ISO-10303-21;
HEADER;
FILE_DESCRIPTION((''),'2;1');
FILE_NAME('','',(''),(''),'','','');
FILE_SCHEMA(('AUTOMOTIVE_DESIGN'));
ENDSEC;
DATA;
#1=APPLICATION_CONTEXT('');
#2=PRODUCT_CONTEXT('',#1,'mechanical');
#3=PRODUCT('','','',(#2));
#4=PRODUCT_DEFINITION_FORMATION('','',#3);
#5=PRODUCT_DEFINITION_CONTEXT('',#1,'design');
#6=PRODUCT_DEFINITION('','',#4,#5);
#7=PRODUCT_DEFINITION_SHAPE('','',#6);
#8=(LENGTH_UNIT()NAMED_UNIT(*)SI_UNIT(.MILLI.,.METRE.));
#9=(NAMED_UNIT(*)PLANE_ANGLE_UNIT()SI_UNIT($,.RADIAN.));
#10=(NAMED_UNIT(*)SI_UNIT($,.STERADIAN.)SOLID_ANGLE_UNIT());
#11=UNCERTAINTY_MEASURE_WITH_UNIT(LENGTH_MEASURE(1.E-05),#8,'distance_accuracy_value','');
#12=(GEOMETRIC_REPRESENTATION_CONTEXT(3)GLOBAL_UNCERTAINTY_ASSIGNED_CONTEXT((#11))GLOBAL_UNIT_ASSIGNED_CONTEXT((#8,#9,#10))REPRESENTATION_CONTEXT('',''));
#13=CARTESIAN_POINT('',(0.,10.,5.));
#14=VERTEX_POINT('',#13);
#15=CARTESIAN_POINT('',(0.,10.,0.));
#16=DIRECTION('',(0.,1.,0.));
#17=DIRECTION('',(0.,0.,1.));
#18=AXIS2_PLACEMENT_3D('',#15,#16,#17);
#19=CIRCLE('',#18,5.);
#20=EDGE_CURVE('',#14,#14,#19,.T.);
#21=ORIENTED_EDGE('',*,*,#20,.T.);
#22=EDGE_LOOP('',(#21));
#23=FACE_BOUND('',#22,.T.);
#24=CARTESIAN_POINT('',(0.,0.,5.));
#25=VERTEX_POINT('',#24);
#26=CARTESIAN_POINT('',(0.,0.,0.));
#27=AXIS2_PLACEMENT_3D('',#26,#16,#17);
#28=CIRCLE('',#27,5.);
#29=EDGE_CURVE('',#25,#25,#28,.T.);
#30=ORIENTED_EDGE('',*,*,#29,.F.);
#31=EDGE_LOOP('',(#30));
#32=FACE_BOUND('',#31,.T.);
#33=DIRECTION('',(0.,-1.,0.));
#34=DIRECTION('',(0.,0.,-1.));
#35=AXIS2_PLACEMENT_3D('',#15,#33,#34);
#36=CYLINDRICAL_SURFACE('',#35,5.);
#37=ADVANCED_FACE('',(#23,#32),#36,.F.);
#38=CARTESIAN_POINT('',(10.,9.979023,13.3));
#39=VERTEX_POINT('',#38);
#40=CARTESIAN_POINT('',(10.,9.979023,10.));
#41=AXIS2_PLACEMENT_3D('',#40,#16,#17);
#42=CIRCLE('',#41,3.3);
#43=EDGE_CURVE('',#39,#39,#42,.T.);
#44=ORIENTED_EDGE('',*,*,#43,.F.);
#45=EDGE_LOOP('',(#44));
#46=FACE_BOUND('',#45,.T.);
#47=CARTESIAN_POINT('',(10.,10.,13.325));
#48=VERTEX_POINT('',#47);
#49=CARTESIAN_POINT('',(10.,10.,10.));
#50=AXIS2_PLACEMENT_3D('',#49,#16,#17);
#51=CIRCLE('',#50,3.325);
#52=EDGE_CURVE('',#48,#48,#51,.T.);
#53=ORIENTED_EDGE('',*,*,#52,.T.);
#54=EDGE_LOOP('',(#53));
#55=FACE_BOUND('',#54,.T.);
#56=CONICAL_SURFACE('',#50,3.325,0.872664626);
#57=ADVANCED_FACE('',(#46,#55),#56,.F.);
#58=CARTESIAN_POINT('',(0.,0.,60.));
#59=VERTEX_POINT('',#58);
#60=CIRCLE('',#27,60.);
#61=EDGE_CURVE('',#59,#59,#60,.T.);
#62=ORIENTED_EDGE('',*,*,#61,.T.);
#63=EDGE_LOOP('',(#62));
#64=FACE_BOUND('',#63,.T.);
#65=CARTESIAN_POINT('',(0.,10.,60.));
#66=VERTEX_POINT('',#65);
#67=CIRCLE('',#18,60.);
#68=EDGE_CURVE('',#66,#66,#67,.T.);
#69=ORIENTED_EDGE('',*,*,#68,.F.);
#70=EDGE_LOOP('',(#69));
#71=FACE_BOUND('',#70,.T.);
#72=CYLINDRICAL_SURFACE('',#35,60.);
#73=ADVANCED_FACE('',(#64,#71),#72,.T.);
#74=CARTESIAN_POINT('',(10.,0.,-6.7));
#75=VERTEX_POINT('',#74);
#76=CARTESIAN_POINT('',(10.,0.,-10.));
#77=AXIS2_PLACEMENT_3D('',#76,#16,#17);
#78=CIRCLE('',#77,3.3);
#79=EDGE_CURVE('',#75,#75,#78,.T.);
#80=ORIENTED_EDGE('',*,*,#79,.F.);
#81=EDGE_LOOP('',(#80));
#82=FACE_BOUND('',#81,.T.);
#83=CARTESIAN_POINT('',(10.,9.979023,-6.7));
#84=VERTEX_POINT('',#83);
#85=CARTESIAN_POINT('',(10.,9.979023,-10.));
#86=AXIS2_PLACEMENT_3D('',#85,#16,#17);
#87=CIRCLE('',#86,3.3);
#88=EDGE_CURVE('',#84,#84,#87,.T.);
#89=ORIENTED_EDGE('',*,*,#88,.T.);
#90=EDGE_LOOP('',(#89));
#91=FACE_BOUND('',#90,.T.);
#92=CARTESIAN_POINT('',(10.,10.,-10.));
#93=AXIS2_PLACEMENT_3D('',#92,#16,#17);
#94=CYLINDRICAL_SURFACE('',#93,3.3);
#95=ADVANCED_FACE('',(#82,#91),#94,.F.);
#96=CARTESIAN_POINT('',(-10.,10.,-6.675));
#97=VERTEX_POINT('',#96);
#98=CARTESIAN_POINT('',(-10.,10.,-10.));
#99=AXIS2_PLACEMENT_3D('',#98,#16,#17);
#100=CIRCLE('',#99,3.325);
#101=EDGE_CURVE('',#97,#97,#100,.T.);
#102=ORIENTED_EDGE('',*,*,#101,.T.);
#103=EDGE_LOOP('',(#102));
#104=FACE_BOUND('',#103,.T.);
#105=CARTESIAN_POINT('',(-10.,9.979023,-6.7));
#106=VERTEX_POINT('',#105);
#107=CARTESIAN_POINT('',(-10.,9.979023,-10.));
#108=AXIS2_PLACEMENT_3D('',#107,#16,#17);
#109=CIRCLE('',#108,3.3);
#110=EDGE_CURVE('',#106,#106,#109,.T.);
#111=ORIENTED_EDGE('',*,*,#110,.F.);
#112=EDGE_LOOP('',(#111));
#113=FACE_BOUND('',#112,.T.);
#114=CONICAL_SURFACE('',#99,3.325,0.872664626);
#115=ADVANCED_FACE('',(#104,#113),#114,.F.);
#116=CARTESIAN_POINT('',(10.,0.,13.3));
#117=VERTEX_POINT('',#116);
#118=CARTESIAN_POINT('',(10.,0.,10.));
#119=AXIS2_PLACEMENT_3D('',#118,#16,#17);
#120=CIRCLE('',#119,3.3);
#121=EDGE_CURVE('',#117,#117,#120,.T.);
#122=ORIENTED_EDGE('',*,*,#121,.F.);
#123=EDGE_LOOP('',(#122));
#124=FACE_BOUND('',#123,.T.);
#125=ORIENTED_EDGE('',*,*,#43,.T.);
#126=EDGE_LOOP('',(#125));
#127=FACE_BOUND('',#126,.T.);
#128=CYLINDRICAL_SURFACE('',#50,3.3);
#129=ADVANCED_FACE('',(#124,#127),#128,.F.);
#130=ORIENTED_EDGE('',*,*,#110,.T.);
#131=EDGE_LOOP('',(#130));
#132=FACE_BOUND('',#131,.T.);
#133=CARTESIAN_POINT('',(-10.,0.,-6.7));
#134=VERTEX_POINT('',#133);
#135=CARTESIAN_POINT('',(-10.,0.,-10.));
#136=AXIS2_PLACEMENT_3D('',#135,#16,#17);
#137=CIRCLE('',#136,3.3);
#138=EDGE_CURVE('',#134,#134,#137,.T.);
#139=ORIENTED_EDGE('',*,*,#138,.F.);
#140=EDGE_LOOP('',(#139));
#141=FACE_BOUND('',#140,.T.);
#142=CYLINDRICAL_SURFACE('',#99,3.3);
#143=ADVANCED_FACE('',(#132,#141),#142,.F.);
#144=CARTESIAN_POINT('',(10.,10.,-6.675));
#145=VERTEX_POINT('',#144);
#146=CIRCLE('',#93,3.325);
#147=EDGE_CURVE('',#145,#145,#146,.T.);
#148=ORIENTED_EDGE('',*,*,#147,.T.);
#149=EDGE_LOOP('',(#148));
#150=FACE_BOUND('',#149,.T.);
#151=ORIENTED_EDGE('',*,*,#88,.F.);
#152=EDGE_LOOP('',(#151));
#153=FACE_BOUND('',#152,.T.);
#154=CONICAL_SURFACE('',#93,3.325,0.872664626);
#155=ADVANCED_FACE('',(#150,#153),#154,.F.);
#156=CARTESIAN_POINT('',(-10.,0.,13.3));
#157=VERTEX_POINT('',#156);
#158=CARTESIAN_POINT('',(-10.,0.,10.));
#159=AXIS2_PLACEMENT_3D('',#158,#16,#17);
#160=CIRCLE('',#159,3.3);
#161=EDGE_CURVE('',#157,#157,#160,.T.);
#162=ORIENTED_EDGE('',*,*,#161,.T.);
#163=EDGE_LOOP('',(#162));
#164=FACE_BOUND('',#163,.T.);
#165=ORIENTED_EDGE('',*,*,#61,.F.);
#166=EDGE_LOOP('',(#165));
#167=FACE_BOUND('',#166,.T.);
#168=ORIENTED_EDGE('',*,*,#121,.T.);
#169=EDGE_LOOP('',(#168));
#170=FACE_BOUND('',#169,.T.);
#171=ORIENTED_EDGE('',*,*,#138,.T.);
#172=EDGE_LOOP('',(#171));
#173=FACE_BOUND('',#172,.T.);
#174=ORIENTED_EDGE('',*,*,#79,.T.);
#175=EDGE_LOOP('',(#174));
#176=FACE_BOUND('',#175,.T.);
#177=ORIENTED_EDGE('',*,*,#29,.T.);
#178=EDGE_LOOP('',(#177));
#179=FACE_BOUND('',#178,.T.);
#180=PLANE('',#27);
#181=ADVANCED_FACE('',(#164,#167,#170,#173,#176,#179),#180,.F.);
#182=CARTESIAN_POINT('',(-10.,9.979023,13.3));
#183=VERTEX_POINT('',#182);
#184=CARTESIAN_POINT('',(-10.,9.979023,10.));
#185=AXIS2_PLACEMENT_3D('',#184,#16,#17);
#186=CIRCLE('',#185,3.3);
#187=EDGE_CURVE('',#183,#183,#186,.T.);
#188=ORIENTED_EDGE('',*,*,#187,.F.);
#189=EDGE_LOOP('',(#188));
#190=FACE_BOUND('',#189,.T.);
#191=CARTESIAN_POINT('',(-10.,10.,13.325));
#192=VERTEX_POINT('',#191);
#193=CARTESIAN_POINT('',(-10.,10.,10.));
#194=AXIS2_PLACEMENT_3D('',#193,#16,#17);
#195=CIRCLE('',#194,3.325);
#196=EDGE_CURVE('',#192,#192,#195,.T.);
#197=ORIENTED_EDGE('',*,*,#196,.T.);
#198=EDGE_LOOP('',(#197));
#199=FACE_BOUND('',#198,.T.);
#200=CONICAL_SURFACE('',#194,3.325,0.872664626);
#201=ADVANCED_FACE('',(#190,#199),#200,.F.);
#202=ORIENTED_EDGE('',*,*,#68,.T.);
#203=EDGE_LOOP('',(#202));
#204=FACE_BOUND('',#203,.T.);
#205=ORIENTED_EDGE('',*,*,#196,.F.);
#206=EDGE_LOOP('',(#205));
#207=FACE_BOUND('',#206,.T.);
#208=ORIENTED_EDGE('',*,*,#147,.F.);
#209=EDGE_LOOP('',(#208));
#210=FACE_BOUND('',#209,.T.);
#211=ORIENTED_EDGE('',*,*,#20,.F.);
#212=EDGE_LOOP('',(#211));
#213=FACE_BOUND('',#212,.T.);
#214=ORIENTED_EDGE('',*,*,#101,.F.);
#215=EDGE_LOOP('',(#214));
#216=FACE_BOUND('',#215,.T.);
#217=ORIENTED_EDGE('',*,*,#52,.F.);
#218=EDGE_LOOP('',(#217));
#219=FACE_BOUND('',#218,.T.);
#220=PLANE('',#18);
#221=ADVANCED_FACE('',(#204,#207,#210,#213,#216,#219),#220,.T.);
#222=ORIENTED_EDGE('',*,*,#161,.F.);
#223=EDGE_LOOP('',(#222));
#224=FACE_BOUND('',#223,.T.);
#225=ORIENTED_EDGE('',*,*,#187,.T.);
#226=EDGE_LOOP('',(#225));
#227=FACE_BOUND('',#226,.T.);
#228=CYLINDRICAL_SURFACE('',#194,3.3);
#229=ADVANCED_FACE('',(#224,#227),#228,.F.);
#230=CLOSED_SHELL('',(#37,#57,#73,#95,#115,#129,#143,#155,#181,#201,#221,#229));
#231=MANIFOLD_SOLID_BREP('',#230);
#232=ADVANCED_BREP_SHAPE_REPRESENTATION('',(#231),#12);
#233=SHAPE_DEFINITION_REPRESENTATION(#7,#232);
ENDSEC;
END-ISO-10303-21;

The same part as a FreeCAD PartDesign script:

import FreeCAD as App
import Part
import Sketcher

V = App.Vector
Q = App.Units.Quantity

doc = App.newDocument("Part")
body = doc.addObject("PartDesign::Body", "Body")

# Sketch on XZ plane
sketch1 = body.newObject("Sketcher::SketchObject", "Sketch")
sketch1.AttachmentSupport = (doc.getObject("XZ_Plane"), [""])
sketch1.MapMode = "FlatFace"
sketch1.addGeometry([
    Part.Circle(V(0, 0, 0), V(0, 0, 1), 60),
    Part.Circle(V(0, 0, 0), V(0, 0, 1), 5),
], False)
sketch1.addConstraint([
    Sketcher.Constraint("Coincident", 0, 3, -1, 1),
    Sketcher.Constraint("Coincident", 1, 3, -1, 1),
    Sketcher.Constraint("Diameter", 0, Q("120 mm")),
    Sketcher.Constraint("Diameter", 1, Q("10 mm")),
])
pad1 = body.newObject("PartDesign::Pad", "Pad")
pad1.Profile = sketch1
pad1.Length = 10
pad1.Reversed = True

# Sketch on XZ plane
sketch2 = body.newObject("Sketcher::SketchObject", "Sketch001")
sketch2.AttachmentSupport = (doc.getObject("XZ_Plane"), [""])
sketch2.MapMode = "FlatFace"
sketch2.AttachmentOffset = App.Placement(V(0, 0, -10), App.Rotation())
sketch2.addGeometry([
    Part.Circle(V(-10, -10, 0), V(0, 0, 1), 3.3),
    Part.Circle(V(10, -10, 0), V(0, 0, 1), 3.3),
    Part.Circle(V(-10, 10, 0), V(0, 0, 1), 3.3),
    Part.Circle(V(10, 10, 0), V(0, 0, 1), 3.3),
], False)
sketch2.addConstraint([
    Sketcher.Constraint("Equal", 0, 1),
    Sketcher.Constraint("Equal", 1, 2),
    Sketcher.Constraint("Equal", 2, 3),
    Sketcher.Constraint("Symmetric", 1, 3, 2, 3, -1, 1),
    Sketcher.Constraint("Symmetric", 0, 3, 3, 3, -1, 1),
    Sketcher.Constraint("Symmetric", 0, 3, 1, 3, -2),
    Sketcher.Constraint("Diameter", 0, Q("6.6 mm")),
    Sketcher.Constraint("DistanceX", 0, 3, -1, 1, Q("10 mm")),
    Sketcher.Constraint("DistanceY", 0, 3, -1, 1, Q("10 mm")),
])
doc.recompute()
hole = body.newObject("PartDesign::Hole", "Hole")
hole.Profile = sketch2
hole.ThreadType = "None"
hole.Diameter = 6.6
hole.DepthType = "ThroughAll"
hole.HoleCutType = "Countersink"
hole.HoleCutDiameter = 6.65
hole.HoleCutCountersinkAngle = 100
hole.Reversed = True

doc.recompute()
